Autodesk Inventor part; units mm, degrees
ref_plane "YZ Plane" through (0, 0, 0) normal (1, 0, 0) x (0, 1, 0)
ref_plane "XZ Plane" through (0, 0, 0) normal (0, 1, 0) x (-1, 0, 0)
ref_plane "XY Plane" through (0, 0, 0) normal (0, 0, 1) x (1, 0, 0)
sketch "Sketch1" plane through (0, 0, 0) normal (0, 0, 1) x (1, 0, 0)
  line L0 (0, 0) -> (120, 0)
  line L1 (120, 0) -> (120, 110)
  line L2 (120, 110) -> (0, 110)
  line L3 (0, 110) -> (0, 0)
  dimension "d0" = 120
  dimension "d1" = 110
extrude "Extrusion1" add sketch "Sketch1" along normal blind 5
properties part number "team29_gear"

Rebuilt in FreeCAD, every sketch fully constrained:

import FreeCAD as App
import Part
import Sketcher

V = App.Vector


def add_polygon(sketch, points):
    """Adds a closed chain of lines whose ends are joined by coincident constraints."""
    first, n = sketch.GeometryCount, len(points)
    for a, b in zip(points, points[1:] + points[:1]):
        sketch.addGeometry(Part.LineSegment(App.Vector(*a, 0), App.Vector(*b, 0)), False)
    for i in range(n):
        sketch.addConstraint(Sketcher.Constraint("Coincident", first + i, 2, first + (i + 1) % n, 1))

doc = App.newDocument("Part")
body = doc.addObject("PartDesign::Body", "Body")

# Sketch on XY plane
sketch1 = body.newObject("Sketcher::SketchObject", "Sketch")
sketch1.AttachmentSupport = (doc.getObject("XY_Plane"), [""])
sketch1.MapMode = "FlatFace"
add_polygon(sketch1, [(0, 110), (0, 0), (120, 0), (120, 110)])  # lines 0-3
sketch1.addConstraint([
    Sketcher.Constraint("Vertical", 0),
    Sketcher.Constraint("Horizontal", 1),
    Sketcher.Constraint("Vertical", 2),
    Sketcher.Constraint("Horizontal", 3),
    Sketcher.Constraint("Coincident", 0, 2, -1, 1),
    Sketcher.Constraint("DistanceX", 1, 1, 1, 2, 120.0),
    Sketcher.Constraint("DistanceY", 0, 2, 0, 1, 110.0),
])
pad1 = body.newObject("PartDesign::Pad", "Pad")
pad1.Profile = sketch1
pad1.Length = 5

doc.recompute()
